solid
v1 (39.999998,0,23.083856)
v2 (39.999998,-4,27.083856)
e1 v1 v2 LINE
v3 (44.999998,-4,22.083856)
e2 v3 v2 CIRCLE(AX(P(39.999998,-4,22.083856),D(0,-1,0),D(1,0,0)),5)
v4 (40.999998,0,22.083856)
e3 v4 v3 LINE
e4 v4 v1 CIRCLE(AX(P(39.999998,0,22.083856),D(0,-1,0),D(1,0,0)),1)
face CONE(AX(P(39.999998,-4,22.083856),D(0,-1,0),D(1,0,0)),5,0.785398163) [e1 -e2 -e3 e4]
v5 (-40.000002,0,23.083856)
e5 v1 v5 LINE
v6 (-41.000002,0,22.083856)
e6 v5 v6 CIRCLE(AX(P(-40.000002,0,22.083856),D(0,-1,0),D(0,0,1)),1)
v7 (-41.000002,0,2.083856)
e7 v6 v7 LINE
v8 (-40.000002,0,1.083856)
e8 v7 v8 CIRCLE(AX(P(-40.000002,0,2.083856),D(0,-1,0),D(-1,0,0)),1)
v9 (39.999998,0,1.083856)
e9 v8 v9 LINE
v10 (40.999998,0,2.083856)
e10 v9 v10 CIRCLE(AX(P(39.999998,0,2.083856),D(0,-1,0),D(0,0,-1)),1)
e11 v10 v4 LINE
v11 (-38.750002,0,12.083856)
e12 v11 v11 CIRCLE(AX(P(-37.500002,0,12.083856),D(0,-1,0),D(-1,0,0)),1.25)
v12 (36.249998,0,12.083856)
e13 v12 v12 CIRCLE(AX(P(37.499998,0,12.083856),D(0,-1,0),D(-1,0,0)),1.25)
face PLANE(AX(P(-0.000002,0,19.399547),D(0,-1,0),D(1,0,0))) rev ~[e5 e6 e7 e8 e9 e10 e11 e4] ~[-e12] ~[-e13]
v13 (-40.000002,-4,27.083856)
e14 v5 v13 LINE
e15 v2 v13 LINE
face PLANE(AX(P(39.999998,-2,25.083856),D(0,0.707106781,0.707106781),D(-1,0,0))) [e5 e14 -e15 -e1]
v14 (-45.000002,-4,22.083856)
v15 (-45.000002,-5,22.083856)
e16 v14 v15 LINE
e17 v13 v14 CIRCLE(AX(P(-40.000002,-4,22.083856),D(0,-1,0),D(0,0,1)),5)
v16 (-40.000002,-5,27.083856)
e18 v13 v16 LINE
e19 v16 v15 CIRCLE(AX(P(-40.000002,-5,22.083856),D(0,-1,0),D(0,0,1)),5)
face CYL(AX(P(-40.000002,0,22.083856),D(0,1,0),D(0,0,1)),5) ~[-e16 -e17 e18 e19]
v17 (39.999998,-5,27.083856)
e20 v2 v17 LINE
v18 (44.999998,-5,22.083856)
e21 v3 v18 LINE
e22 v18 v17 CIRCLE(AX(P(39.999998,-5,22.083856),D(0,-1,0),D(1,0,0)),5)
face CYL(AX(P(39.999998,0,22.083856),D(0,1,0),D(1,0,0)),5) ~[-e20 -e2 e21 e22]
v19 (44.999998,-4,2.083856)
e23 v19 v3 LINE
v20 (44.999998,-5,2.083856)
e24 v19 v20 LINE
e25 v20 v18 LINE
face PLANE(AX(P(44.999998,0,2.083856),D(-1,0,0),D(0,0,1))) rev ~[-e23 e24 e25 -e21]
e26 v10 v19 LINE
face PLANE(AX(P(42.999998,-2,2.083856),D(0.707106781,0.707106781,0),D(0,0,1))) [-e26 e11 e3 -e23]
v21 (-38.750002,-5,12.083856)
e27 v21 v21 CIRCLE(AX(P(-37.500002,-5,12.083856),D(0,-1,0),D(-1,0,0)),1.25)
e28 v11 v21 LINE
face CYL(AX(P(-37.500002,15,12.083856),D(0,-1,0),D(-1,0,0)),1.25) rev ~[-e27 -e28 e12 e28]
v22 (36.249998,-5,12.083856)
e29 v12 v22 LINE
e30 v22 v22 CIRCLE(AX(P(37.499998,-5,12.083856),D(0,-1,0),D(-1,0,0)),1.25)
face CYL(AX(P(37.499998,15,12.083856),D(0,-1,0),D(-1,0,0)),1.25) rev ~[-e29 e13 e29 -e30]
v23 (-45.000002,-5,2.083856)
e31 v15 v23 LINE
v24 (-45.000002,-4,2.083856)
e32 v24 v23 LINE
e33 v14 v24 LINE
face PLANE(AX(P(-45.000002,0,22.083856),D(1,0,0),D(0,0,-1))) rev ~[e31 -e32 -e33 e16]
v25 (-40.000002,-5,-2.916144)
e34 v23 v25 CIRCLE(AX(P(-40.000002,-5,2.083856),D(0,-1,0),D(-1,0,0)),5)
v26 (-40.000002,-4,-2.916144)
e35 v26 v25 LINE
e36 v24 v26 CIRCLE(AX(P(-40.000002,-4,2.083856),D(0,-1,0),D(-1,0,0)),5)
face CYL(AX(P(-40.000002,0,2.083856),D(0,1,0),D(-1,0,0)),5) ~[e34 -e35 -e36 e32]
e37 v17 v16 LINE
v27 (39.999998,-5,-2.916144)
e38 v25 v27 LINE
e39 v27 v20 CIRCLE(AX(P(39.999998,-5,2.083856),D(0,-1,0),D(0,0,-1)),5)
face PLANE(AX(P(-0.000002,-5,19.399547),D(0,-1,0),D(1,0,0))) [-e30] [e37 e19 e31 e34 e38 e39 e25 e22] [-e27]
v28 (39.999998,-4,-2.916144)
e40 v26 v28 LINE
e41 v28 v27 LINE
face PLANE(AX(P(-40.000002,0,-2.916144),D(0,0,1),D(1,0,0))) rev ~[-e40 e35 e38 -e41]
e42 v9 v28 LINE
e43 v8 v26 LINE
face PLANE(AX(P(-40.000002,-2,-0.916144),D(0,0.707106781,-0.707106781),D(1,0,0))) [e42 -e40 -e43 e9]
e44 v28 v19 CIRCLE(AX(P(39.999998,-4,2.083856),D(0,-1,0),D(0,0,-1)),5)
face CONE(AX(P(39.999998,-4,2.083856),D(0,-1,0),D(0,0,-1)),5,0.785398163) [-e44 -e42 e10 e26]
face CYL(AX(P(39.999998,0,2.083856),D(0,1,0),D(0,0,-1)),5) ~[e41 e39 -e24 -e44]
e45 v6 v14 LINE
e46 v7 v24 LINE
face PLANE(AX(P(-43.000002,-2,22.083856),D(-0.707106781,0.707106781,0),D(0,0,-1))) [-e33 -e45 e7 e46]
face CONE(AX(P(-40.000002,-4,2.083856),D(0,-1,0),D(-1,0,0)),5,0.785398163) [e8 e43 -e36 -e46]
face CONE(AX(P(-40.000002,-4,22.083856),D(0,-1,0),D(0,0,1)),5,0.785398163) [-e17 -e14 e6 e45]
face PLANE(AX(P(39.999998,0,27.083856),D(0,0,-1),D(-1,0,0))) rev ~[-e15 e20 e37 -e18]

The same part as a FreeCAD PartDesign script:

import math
import FreeCAD as App
import Part
import Sketcher
from FreeCAD import Vector
Q = App.Units.Quantity


def edges_at(feature, points):
    """Names of the edges that pass closest to the given points."""
    edges = feature.Shape.Edges
    near = lambda p: min(range(len(edges)), key=lambda i: edges[i].distToShape(Part.Vertex(*p))[0])
    return sorted({f"Edge{near(p) + 1}" for p in points})

doc = App.newDocument("Part")
body = doc.addObject("PartDesign::Body", "Body")

sketch1 = doc.addObject("Sketcher::SketchObject", "Sketch")
body.addObject(sketch1)
sketch1.AttachmentSupport = (doc.XZ_Plane, [""])
sketch1.MapMode = "FlatFace"
sketch1.addGeometry([
    Part.LineSegment(Vector(40, 27, 0), Vector(-40, 27, 0)),
    Part.ArcOfCircle(Part.Circle(Vector(-40, 22, 0), Vector(0, 0, 1), 5), math.radians(90), math.radians(180)),
    Part.LineSegment(Vector(-45, 22, 0), Vector(-45, 2, 0)),
    Part.ArcOfCircle(Part.Circle(Vector(-40, 2, 0), Vector(0, 0, 1), 5), math.radians(180), math.radians(270)),
    Part.LineSegment(Vector(-40, -3, 0), Vector(40, -3, 0)),
    Part.ArcOfCircle(Part.Circle(Vector(40, 2, 0), Vector(0, 0, 1), 5), math.radians(-90), math.radians(0)),
    Part.LineSegment(Vector(45, 2, 0), Vector(45, 22, 0)),
    Part.ArcOfCircle(Part.Circle(Vector(40, 22, 0), Vector(0, 0, 1), 5), math.radians(0), math.radians(90)),
], False)
sketch1.addConstraint([
    Sketcher.Constraint("Tangent", 0, 2, 1, 1),
    Sketcher.Constraint("Tangent", 1, 2, 2, 1),
    Sketcher.Constraint("Tangent", 2, 2, 3, 1),
    Sketcher.Constraint("Tangent", 3, 2, 4, 1),
    Sketcher.Constraint("Tangent", 4, 2, 5, 1),
    Sketcher.Constraint("Tangent", 5, 2, 6, 1),
    Sketcher.Constraint("Tangent", 6, 2, 7, 1),
    Sketcher.Constraint("Tangent", 7, 2, 0, 1),
    Sketcher.Constraint("Horizontal", 0),
    Sketcher.Constraint("Vertical", 2),
    Sketcher.Constraint("Horizontal", 4),
    Sketcher.Constraint("Vertical", 6),
    Sketcher.Constraint("Equal", 1, 3),
    Sketcher.Constraint("Equal", 3, 5),
    Sketcher.Constraint("Equal", 5, 7),
    Sketcher.Constraint("Radius", 1, Q("5 mm")),
    Sketcher.Constraint("DistanceX", 0, 2, 0, 1, Q("80 mm")),
    Sketcher.Constraint("DistanceY", 2, 2, 2, 1, Q("20 mm")),
    Sketcher.Constraint("DistanceX", 1, 3, -1, 1, Q("40.000002 mm")),
    Sketcher.Constraint("DistanceY", -1, 1, 1, 3, Q("22.083856 mm")),
])
pad1 = doc.addObject("PartDesign::Pad", "Pad")
body.addObject(pad1)
pad1.Profile = sketch1
pad1.Length = 5

sketch2 = doc.addObject("Sketcher::SketchObject", "Sketch001")
body.addObject(sketch2)
sketch2.AttachmentSupport = (doc.XZ_Plane, [""])
sketch2.MapMode = "FlatFace"
sketch2.addGeometry([
    Part.Circle(Vector(-37.5, 12.1, 0), Vector(0, 0, 1), 1.2),
    Part.Circle(Vector(37.5, 12.1, 0), Vector(0, 0, 1), 1.2),
], False)
sketch2.addConstraint([
    Sketcher.Constraint("Equal", 0, 1),
    Sketcher.Constraint("Symmetric", 0, 3, 1, 3, -2),
    Sketcher.Constraint("Diameter", 0, Q("2.5 mm")),
    Sketcher.Constraint("DistanceX", 0, 3, 1, 3, Q("75 mm")),
    Sketcher.Constraint("DistanceY", -1, 1, 0, 3, Q("12.083856 mm")),
])
doc.recompute()
hole = doc.addObject("PartDesign::Hole", "Hole")
body.addObject(hole)
hole.Profile = sketch2
hole.ThreadType = "None"
hole.Diameter = 2.5
hole.DepthType = "Dimension"
hole.Depth = 15
hole.DrillPoint = "Angled"
hole.DrillPointAngle = 118
hole.Reversed = True
doc.recompute()

chamfer = doc.addObject("PartDesign::Chamfer", "Chamfer")
body.addObject(chamfer)
chamfer.Base = (hole, edges_at(hole, [(0, 0, -2.916)]))
chamfer.Size = 4

doc.recompute()
